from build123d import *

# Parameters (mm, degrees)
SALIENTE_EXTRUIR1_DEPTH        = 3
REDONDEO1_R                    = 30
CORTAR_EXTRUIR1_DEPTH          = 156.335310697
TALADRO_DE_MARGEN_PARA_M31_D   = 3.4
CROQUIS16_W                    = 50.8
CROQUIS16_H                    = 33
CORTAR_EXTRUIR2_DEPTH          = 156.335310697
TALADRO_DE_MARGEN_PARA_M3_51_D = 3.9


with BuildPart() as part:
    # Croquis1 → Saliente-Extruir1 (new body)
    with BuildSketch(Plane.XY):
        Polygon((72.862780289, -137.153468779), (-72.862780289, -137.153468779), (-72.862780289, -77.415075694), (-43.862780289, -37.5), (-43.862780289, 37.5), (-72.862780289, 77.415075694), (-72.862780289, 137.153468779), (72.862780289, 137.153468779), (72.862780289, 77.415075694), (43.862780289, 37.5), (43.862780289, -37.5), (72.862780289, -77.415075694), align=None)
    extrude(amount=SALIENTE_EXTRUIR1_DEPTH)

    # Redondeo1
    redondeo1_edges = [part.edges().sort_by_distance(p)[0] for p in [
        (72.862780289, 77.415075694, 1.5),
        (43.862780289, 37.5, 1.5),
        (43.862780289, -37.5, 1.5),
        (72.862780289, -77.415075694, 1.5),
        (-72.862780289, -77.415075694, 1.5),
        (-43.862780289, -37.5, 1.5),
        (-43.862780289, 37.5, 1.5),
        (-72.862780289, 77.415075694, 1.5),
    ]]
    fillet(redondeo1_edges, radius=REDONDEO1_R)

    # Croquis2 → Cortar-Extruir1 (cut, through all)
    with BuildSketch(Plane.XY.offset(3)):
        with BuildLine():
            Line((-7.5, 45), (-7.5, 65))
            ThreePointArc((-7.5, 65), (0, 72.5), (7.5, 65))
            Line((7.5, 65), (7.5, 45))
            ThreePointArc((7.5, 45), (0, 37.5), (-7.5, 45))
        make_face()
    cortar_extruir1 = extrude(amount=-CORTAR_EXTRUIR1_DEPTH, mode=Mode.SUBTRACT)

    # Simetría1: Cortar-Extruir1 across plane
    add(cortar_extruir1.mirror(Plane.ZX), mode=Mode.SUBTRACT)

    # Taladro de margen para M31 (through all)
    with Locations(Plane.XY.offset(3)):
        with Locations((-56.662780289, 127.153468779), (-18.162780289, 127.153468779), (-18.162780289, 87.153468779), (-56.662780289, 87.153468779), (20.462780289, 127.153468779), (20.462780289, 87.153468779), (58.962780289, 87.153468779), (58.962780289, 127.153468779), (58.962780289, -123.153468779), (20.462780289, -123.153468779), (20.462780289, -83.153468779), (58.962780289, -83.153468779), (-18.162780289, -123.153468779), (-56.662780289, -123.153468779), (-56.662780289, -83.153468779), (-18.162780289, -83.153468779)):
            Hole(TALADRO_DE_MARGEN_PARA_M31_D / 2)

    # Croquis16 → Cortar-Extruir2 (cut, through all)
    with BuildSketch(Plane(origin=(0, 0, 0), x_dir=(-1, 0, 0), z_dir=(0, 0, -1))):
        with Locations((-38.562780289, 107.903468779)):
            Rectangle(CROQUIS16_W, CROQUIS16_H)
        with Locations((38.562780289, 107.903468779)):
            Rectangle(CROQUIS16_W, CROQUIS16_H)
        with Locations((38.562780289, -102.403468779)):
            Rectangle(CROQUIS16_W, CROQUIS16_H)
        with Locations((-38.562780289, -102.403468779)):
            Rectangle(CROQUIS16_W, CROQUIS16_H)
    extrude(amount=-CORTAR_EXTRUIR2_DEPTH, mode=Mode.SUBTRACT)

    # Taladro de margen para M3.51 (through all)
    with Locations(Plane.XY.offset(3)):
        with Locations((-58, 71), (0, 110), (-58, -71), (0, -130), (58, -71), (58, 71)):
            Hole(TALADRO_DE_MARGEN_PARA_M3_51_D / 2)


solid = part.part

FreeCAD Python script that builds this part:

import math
import FreeCAD as App
import Part
import Sketcher
from FreeCAD import Vector
Q = App.Units.Quantity


def edges_at(feature, points):
    """Names of the edges that pass closest to the given points."""
    edges = feature.Shape.Edges
    near = lambda p: min(range(len(edges)), key=lambda i: edges[i].distToShape(Part.Vertex(*p))[0])
    return sorted({f"Edge{near(p) + 1}" for p in points})

doc = App.newDocument("Part")
params = doc.addObject("Spreadsheet::Sheet", "Params")
for row, (alias, value) in enumerate([
    ("sketch1_height", "75 mm"),
    ("pad1_length", "3 mm"),
    ("fillet_radius", "30 mm"),
    ("sketch2_radius", "7.5 mm"),
    ("sketch2_height", "20 mm"),
    ("sketch3_diameter", "3.4 mm"),
    ("hole_diameter", "3.4 mm"),
    ("sketch4_height", "33 mm"),
    ("sketch4_width", "50.8 mm"),
    ("sketch5_diameter", "3.9 mm"),
    ("hole2_diameter", "3.9 mm"),
], start=1):
    params.set(f"A{row}", alias)
    params.set(f"B{row}", "=" + value)
    params.setAlias(f"B{row}", alias)

body = doc.addObject("PartDesign::Body", "Body")

# Sketch on XY plane
sketch1 = doc.addObject("Sketcher::SketchObject", "Sketch")
body.addObject(sketch1)
sketch1.AttachmentSupport = (doc.XY_Plane, [""])
sketch1.MapMode = "FlatFace"
sketch1.addGeometry(Part.LineSegment(Vector(-72.86278, -137.153469, 0), Vector(72.86278, -137.153469, 0)), False)
sketch1.addGeometry(Part.LineSegment(Vector(72.86278, -137.153469, 0), Vector(72.86278, -77.415076, 0)), False)
sketch1.addGeometry(Part.LineSegment(Vector(72.86278, -77.415076, 0), Vector(43.86278, -37.5, 0)), False)
sketch1.addGeometry(Part.LineSegment(Vector(43.86278, -37.5, 0), Vector(43.86278, 37.5, 0)), False)
sketch1.addGeometry(Part.LineSegment(Vector(43.86278, 37.5, 0), Vector(72.86278, 77.415076, 0)), False)
sketch1.addGeometry(Part.LineSegment(Vector(72.86278, 77.415076, 0), Vector(72.86278, 137.153469, 0)), False)
sketch1.addGeometry(Part.LineSegment(Vector(72.86278, 137.153469, 0), Vector(-72.86278, 137.153469, 0)), False)
sketch1.addGeometry(Part.LineSegment(Vector(-72.86278, 137.153469, 0), Vector(-72.86278, 77.415076, 0)), False)
sketch1.addGeometry(Part.LineSegment(Vector(-72.86278, 77.415076, 0), Vector(-43.86278, 37.5, 0)), False)
sketch1.addGeometry(Part.LineSegment(Vector(-43.86278, 37.5, 0), Vector(-43.86278, -37.5, 0)), False)
sketch1.addGeometry(Part.LineSegment(Vector(-43.86278, -37.5, 0), Vector(-72.86278, -77.415076, 0)), False)
sketch1.addGeometry(Part.LineSegment(Vector(-72.86278, -77.415076, 0), Vector(-72.86278, -137.153469, 0)), False)
sketch1.addConstraint(Sketcher.Constraint("Coincident", 0, 2, 1, 1))
sketch1.addConstraint(Sketcher.Constraint("Coincident", 1, 2, 2, 1))
sketch1.addConstraint(Sketcher.Constraint("Coincident", 2, 2, 3, 1))
sketch1.addConstraint(Sketcher.Constraint("Coincident", 3, 2, 4, 1))
sketch1.addConstraint(Sketcher.Constraint("Coincident", 4, 2, 5, 1))
sketch1.addConstraint(Sketcher.Constraint("Coincident", 5, 2, 6, 1))
sketch1.addConstraint(Sketcher.Constraint("Coincident", 6, 2, 7, 1))
sketch1.addConstraint(Sketcher.Constraint("Coincident", 7, 2, 8, 1))
sketch1.addConstraint(Sketcher.Constraint("Coincident", 8, 2, 9, 1))
sketch1.addConstraint(Sketcher.Constraint("Coincident", 9, 2, 10, 1))
sketch1.addConstraint(Sketcher.Constraint("Coincident", 10, 2, 11, 1))
sketch1.addConstraint(Sketcher.Constraint("Coincident", 11, 2, 0, 1))
sketch1.addConstraint(Sketcher.Constraint("Horizontal", 0))
sketch1.addConstraint(Sketcher.Constraint("Vertical", 1))
sketch1.addConstraint(Sketcher.Constraint("Vertical", 3))
sketch1.addConstraint(Sketcher.Constraint("Vertical", 5))
sketch1.addConstraint(Sketcher.Constraint("Horizontal", 6))
sketch1.addConstraint(Sketcher.Constraint("Vertical", 7))
sketch1.addConstraint(Sketcher.Constraint("Vertical", 9))
sketch1.addConstraint(Sketcher.Constraint("Vertical", 11))
sketch1.addConstraint(Sketcher.Constraint("Symmetric", 0, 2, 6, 2, -1, 1))
sketch1.addConstraint(Sketcher.Constraint("Symmetric", 2, 2, 8, 2, -1, 1))
sketch1.addConstraint(Sketcher.Constraint("Symmetric", 4, 2, 10, 2, -1, 1))
sketch1.addConstraint(Sketcher.Constraint("Symmetric", 4, 2, 7, 2, -2))
sketch1.addConstraint(Sketcher.Constraint("Parallel", 2, 8))
sketch1.addConstraint(Sketcher.Constraint("Parallel", 4, 10))
sketch1.addConstraint(Sketcher.Constraint("Horizontal", 3, 2, 8, 2))
sketch1.addConstraint(Sketcher.Constraint("DistanceY", 3, 1, 3, 2, 75.0))
sketch1.addConstraint(Sketcher.Constraint("Angle", 2, Q("126 deg")))
sketch1.addConstraint(Sketcher.Constraint("DistanceX", 2, 2, 1, 2, 29.0))
sketch1.addConstraint(Sketcher.Constraint("DistanceX", 0, 1, 0, 2, 145.725561))
sketch1.addConstraint(Sketcher.Constraint("DistanceY", 1, 1, 1, 2, 59.738393))
sketch1.setExpression("Constraints[27]", "Params.sketch1_height")
pad1 = doc.addObject("PartDesign::Pad", "Pad")
body.addObject(pad1)
pad1.Profile = sketch1
pad1.setExpression("Length", "Params.pad1_length")
doc.recompute()

fillet = doc.addObject("PartDesign::Fillet", "Fillet")
body.addObject(fillet)
fillet.Base = (pad1, edges_at(pad1, [
    (72.863, 77.415, 1.5),
    (43.863, 37.5, 1.5),
    (43.863, -37.5, 1.5),
    (72.863, -77.415, 1.5),
    (-72.863, -77.415, 1.5),
    (-43.863, -37.5, 1.5),
    (-43.863, 37.5, 1.5),
    (-72.863, 77.415, 1.5),
]))
fillet.setExpression("Radius", "Params.fillet_radius")

# Sketch on XY plane
sketch2 = doc.addObject("Sketcher::SketchObject", "Sketch001")
body.addObject(sketch2)
sketch2.AttachmentSupport = (doc.XY_Plane, [""])
sketch2.MapMode = "FlatFace"
sketch2.AttachmentOffset = App.Placement(Vector(0, 0, 3), App.Rotation())
sketch2.addGeometry(Part.LineSegment(Vector(-7.5, 65, 0), Vector(-7.5, 45, 0)), False)
sketch2.addGeometry(Part.ArcOfCircle(Part.Circle(Vector(0, 45, 0), Vector(0, 0, 1), 7.5), math.radians(180), math.radians(360)), False)
sketch2.addGeometry(Part.LineSegment(Vector(7.5, 45, 0), Vector(7.5, 65, 0)), False)
sketch2.addGeometry(Part.ArcOfCircle(Part.Circle(Vector(0, 65, 0), Vector(0, 0, 1), 7.5), math.radians(0), math.radians(180)), False)
sketch2.addConstraint(Sketcher.Constraint("Tangent", 0, 2, 1, 1))
sketch2.addConstraint(Sketcher.Constraint("Tangent", 1, 2, 2, 1))
sketch2.addConstraint(Sketcher.Constraint("Tangent", 2, 2, 3, 1))
sketch2.addConstraint(Sketcher.Constraint("Tangent", 3, 2, 0, 1))
sketch2.addConstraint(Sketcher.Constraint("Vertical", 0))
sketch2.addConstraint(Sketcher.Constraint("Vertical", 2))
sketch2.addConstraint(Sketcher.Constraint("PointOnObject", 1, 3, -2))
sketch2.addConstraint(Sketcher.Constraint("Radius", 1, 7.5))
sketch2.addConstraint(Sketcher.Constraint("DistanceY", 0, 2, 0, 1, 20.0))
sketch2.addConstraint(Sketcher.Constraint("DistanceY", -1, 1, 1, 3, 45.0))
sketch2.setExpression("Constraints[7]", "Params.sketch2_radius")
sketch2.setExpression("Constraints[8]", "Params.sketch2_height")
pocket1 = doc.addObject("PartDesign::Pocket", "Pocket")
body.addObject(pocket1)
pocket1.Profile = sketch2
pocket1.Type = "ThroughAll"
doc.recompute()

mirrored = doc.addObject("PartDesign::Mirrored", "Mirrored")
body.addObject(mirrored)
mirrored.Originals = [pocket1]
mirrored.MirrorPlane = (doc.XZ_Plane, [""])
body.Tip = mirrored

# Sketch on XY plane
sketch3 = doc.addObject("Sketcher::SketchObject", "Sketch002")
body.addObject(sketch3)
sketch3.AttachmentSupport = (doc.XY_Plane, [""])
sketch3.MapMode = "FlatFace"
sketch3.AttachmentOffset = App.Placement(Vector(0, 0, 3), App.Rotation())
sketch3.addGeometry(Part.Circle(Vector(-56.66278, 127.153469, 0), Vector(0, 0, 1), 1.7), False)
sketch3.addGeometry(Part.Circle(Vector(-18.16278, 127.153469, 0), Vector(0, 0, 1), 1.7), False)
sketch3.addGeometry(Part.Circle(Vector(-18.16278, 87.153469, 0), Vector(0, 0, 1), 1.7), False)
sketch3.addGeometry(Part.Circle(Vector(-56.66278, 87.153469, 0), Vector(0, 0, 1), 1.7), False)
sketch3.addGeometry(Part.Circle(Vector(20.46278, 127.153469, 0), Vector(0, 0, 1), 1.7), False)
sketch3.addGeometry(Part.Circle(Vector(20.46278, 87.153469, 0), Vector(0, 0, 1), 1.7), False)
sketch3.addGeometry(Part.Circle(Vector(58.96278, 87.153469, 0), Vector(0, 0, 1), 1.7), False)
sketch3.addGeometry(Part.Circle(Vector(58.96278, 127.153469, 0), Vector(0, 0, 1), 1.7), False)
sketch3.addGeometry(Part.Circle(Vector(58.96278, -123.153469, 0), Vector(0, 0, 1), 1.7), False)
sketch3.addGeometry(Part.Circle(Vector(20.46278, -123.153469, 0), Vector(0, 0, 1), 1.7), False)
sketch3.addGeometry(Part.Circle(Vector(20.46278, -83.153469, 0), Vector(0, 0, 1), 1.7), False)
sketch3.addGeometry(Part.Circle(Vector(58.96278, -83.153469, 0), Vector(0, 0, 1), 1.7), False)
sketch3.addGeometry(Part.Circle(Vector(-18.16278, -123.153469, 0), Vector(0, 0, 1), 1.7), False)
sketch3.addGeometry(Part.Circle(Vector(-56.66278, -123.153469, 0), Vector(0, 0, 1), 1.7), False)
sketch3.addGeometry(Part.Circle(Vector(-56.66278, -83.153469, 0), Vector(0, 0, 1), 1.7), False)
sketch3.addGeometry(Part.Circle(Vector(-18.16278, -83.153469, 0), Vector(0, 0, 1), 1.7), False)
sketch3.addConstraint(Sketcher.Constraint("Equal", 0, 1))
sketch3.addConstraint(Sketcher.Constraint("Equal", 1, 2))
sketch3.addConstraint(Sketcher.Constraint("Equal", 2, 3))
sketch3.addConstraint(Sketcher.Constraint("Equal", 3, 4))
sketch3.addConstraint(Sketcher.Constraint("Equal", 4, 5))
sketch3.addConstraint(Sketcher.Constraint("Equal", 5, 6))
sketch3.addConstraint(Sketcher.Constraint("Equal", 6, 7))
sketch3.addConstraint(Sketcher.Constraint("Equal", 7, 8))
sketch3.addConstraint(Sketcher.Constraint("Equal", 8, 9))
sketch3.addConstraint(Sketcher.Constraint("Equal", 9, 10))
sketch3.addConstraint(Sketcher.Constraint("Equal", 10, 11))
sketch3.addConstraint(Sketcher.Constraint("Equal", 11, 12))
sketch3.addConstraint(Sketcher.Constraint("Equal", 12, 13))
sketch3.addConstraint(Sketcher.Constraint("Equal", 13, 14))
sketch3.addConstraint(Sketcher.Constraint("Equal", 14, 15))
sketch3.addConstraint(Sketcher.Constraint("Horizontal", 0, 3, 1, 3))
sketch3.addConstraint(Sketcher.Constraint("Horizontal", 2, 3, 3, 3))
sketch3.addConstraint(Sketcher.Constraint("Horizontal", 1, 3, 4, 3))
sketch3.addConstraint(Sketcher.Constraint("Horizontal", 3, 3, 5, 3))
sketch3.addConstraint(Sketcher.Constraint("Horizontal", 5, 3, 6, 3))
sketch3.addConstraint(Sketcher.Constraint("Horizontal", 4, 3, 7, 3))
sketch3.addConstraint(Sketcher.Constraint("Horizontal", 8, 3, 9, 3))
sketch3.addConstraint(Sketcher.Constraint("Horizontal", 10, 3, 11, 3))
sketch3.addConstraint(Sketcher.Constraint("Horizontal", 9, 3, 12, 3))
sketch3.addConstraint(Sketcher.Constraint("Horizontal", 12, 3, 13, 3))
sketch3.addConstraint(Sketcher.Constraint("Horizontal", 11, 3, 14, 3))
sketch3.addConstraint(Sketcher.Constraint("Horizontal", 14, 3, 15, 3))
sketch3.addConstraint(Sketcher.Constraint("Vertical", 1, 3, 2, 3))
sketch3.addConstraint(Sketcher.Constraint("Vertical", 0, 3, 3, 3))
sketch3.addConstraint(Sketcher.Constraint("Vertical", 4, 3, 5, 3))
sketch3.addConstraint(Sketcher.Constraint("Vertical", 6, 3, 7, 3))
sketch3.addConstraint(Sketcher.Constraint("Vertical", 7, 3, 8, 3))
sketch3.addConstraint(Sketcher.Constraint("Vertical", 5, 3, 9, 3))
sketch3.addConstraint(Sketcher.Constraint("Vertical", 9, 3, 10, 3))
sketch3.addConstraint(Sketcher.Constraint("Vertical", 8, 3, 11, 3))
sketch3.addConstraint(Sketcher.Constraint("Vertical", 2, 3, 12, 3))
sketch3.addConstraint(Sketcher.Constraint("Vertical", 3, 3, 13, 3))
sketch3.addConstraint(Sketcher.Constraint("Vertical", 13, 3, 14, 3))
sketch3.addConstraint(Sketcher.Constraint("Vertical", 12, 3, 15, 3))
sketch3.addConstraint(Sketcher.Constraint("Diameter", 0, 3.4))
sketch3.addConstraint(Sketcher.Constraint("DistanceY", 2, 3, 1, 3, 40.0))
sketch3.addConstraint(Sketcher.Constraint("DistanceY", 9, 3, 10, 3, 40.0))
sketch3.addConstraint(Sketcher.Constraint("DistanceX", 0, 3, 1, 3, 38.5))
sketch3.addConstraint(Sketcher.Constraint("DistanceX", 5, 3, 6, 3, 38.5))
sketch3.addConstraint(Sketcher.Constraint("DistanceX", 0, 3, -1, 1, 56.66278))
sketch3.addConstraint(Sketcher.Constraint("DistanceY", -1, 1, 0, 3, 127.153469))
sketch3.addConstraint(Sketcher.Constraint("DistanceX", -1, 1, 4, 3, 20.46278))
sketch3.addConstraint(Sketcher.Constraint("DistanceY", 8, 3, -1, 1, 123.153469))
sketch3.setExpression("Constraints[39]", "Params.sketch3_diameter")
doc.recompute()
hole = doc.addObject("PartDesign::Hole", "Hole")
body.addObject(hole)
hole.Profile = sketch3
hole.ThreadType = "None"
hole.setExpression("Diameter", "Params.hole_diameter")
hole.DepthType = "ThroughAll"

# Sketch on XY plane
sketch4 = doc.addObject("Sketcher::SketchObject", "Sketch003")
body.addObject(sketch4)
sketch4.AttachmentSupport = (doc.XY_Plane, [""])
sketch4.MapMode = "FlatFace"
sketch4.addGeometry(Part.LineSegment(Vector(63.96278, 124.403469, 0), Vector(63.96278, 91.403469, 0)), False)
sketch4.addGeometry(Part.LineSegment(Vector(63.96278, 91.403469, 0), Vector(13.16278, 91.403469, 0)), False)
sketch4.addGeometry(Part.LineSegment(Vector(13.16278, 91.403469, 0), Vector(13.16278, 124.403469, 0)), False)
sketch4.addGeometry(Part.LineSegment(Vector(13.16278, 124.403469, 0), Vector(63.96278, 124.403469, 0)), False)
sketch4.addGeometry(Part.LineSegment(Vector(-13.16278, 124.403469, 0), Vector(-13.16278, 91.403469, 0)), False)
sketch4.addGeometry(Part.LineSegment(Vector(-13.16278, 91.403469, 0), Vector(-63.96278, 91.403469, 0)), False)
sketch4.addGeometry(Part.LineSegment(Vector(-63.96278, 91.403469, 0), Vector(-63.96278, 124.403469, 0)), False)
sketch4.addGeometry(Part.LineSegment(Vector(-63.96278, 124.403469, 0), Vector(-13.16278, 124.403469, 0)), False)
sketch4.addGeometry(Part.LineSegment(Vector(-13.16278, -85.903469, 0), Vector(-13.16278, -118.903469, 0)), False)
sketch4.addGeometry(Part.LineSegment(Vector(-13.16278, -118.903469, 0), Vector(-63.96278, -118.903469, 0)), False)
sketch4.addGeometry(Part.LineSegment(Vector(-63.96278, -118.903469, 0), Vector(-63.96278, -85.903469, 0)), False)
sketch4.addGeometry(Part.LineSegment(Vector(-63.96278, -85.903469, 0), Vector(-13.16278, -85.903469, 0)), False)
sketch4.addGeometry(Part.LineSegment(Vector(63.96278, -85.903469, 0), Vector(63.96278, -118.903469, 0)), False)
sketch4.addGeometry(Part.LineSegment(Vector(63.96278, -118.903469, 0), Vector(13.16278, -118.903469, 0)), False)
sketch4.addGeometry(Part.LineSegment(Vector(13.16278, -118.903469, 0), Vector(13.16278, -85.903469, 0)), False)
sketch4.addGeometry(Part.LineSegment(Vector(13.16278, -85.903469, 0), Vector(63.96278, -85.903469, 0)), False)
sketch4.addConstraint(Sketcher.Constraint("Coincident", 0, 2, 1, 1))
sketch4.addConstraint(Sketcher.Constraint("Coincident", 1, 2, 2, 1))
sketch4.addConstraint(Sketcher.Constraint("Coincident", 2, 2, 3, 1))
sketch4.addConstraint(Sketcher.Constraint("Coincident", 3, 2, 0, 1))
sketch4.addConstraint(Sketcher.Constraint("Coincident", 4, 2, 5, 1))
sketch4.addConstraint(Sketcher.Constraint("Coincident", 5, 2, 6, 1))
sketch4.addConstraint(Sketcher.Constraint("Coincident", 6, 2, 7, 1))
sketch4.addConstraint(Sketcher.Constraint("Coincident", 7, 2, 4, 1))
sketch4.addConstraint(Sketcher.Constraint("Coincident", 8, 2, 9, 1))
sketch4.addConstraint(Sketcher.Constraint("Coincident", 9, 2, 10, 1))
sketch4.addConstraint(Sketcher.Constraint("Coincident", 10, 2, 11, 1))
sketch4.addConstraint(Sketcher.Constraint("Coincident", 11, 2, 8, 1))
sketch4.addConstraint(Sketcher.Constraint("Coincident", 12, 2, 13, 1))
sketch4.addConstraint(Sketcher.Constraint("Coincident", 13, 2, 14, 1))
sketch4.addConstraint(Sketcher.Constraint("Coincident", 14, 2, 15, 1))
sketch4.addConstraint(Sketcher.Constraint("Coincident", 15, 2, 12, 1))
sketch4.addConstraint(Sketcher.Constraint("Vertical", 0))
sketch4.addConstraint(Sketcher.Constraint("Horizontal", 1))
sketch4.addConstraint(Sketcher.Constraint("Vertical", 2))
sketch4.addConstraint(Sketcher.Constraint("Horizontal", 3))
sketch4.addConstraint(Sketcher.Constraint("Vertical", 4))
sketch4.addConstraint(Sketcher.Constraint("Horizontal", 5))
sketch4.addConstraint(Sketcher.Constraint("Vertical", 6))
sketch4.addConstraint(Sketcher.Constraint("Horizontal", 7))
sketch4.addConstraint(Sketcher.Constraint("Vertical", 8))
sketch4.addConstraint(Sketcher.Constraint("Horizontal", 9))
sketch4.addConstraint(Sketcher.Constraint("Vertical", 10))
sketch4.addConstraint(Sketcher.Constraint("Horizontal", 11))
sketch4.addConstraint(Sketcher.Constraint("Vertical", 12))
sketch4.addConstraint(Sketcher.Constraint("Horizontal", 13))
sketch4.addConstraint(Sketcher.Constraint("Vertical", 14))
sketch4.addConstraint(Sketcher.Constraint("Horizontal", 15))
sketch4.addConstraint(Sketcher.Constraint("Symmetric", 1, 2, 4, 2, -2))
sketch4.addConstraint(Sketcher.Constraint("Symmetric", 3, 2, 6, 2, -2))
sketch4.addConstraint(Sketcher.Constraint("Symmetric", 9, 2, 12, 2, -2))
sketch4.addConstraint(Sketcher.Constraint("Symmetric", 11, 2, 14, 2, -2))
sketch4.addConstraint(Sketcher.Constraint("Vertical", 7, 2, 8, 2))
sketch4.addConstraint(Sketcher.Constraint("Vertical", 6, 2, 9, 2))
sketch4.addConstraint(Sketcher.Constraint("Equal", 6, 8))
sketch4.addConstraint(Sketcher.Constraint("DistanceY", 0, 2, 0, 1, 33.0))
sketch4.addConstraint(Sketcher.Constraint("DistanceX", 1, 2, 1, 1, 50.8))
sketch4.addConstraint(Sketcher.Constraint("DistanceX", -1, 1, 0, 2, 63.96278))
sketch4.addConstraint(Sketcher.Constraint("DistanceY", -1, 1, 0, 2, 91.403469))
sketch4.addConstraint(Sketcher.Constraint("DistanceY", 8, 2, -1, 1, 118.903469))
sketch4.setExpression("Constraints[39]", "Params.sketch4_height")
sketch4.setExpression("Constraints[40]", "Params.sketch4_width")
pocket2 = doc.addObject("PartDesign::Pocket", "Pocket001")
body.addObject(pocket2)
pocket2.Profile = sketch4
pocket2.Type = "ThroughAll"
pocket2.Reversed = True

# Sketch on XY plane
sketch5 = doc.addObject("Sketcher::SketchObject", "Sketch004")
body.addObject(sketch5)
sketch5.AttachmentSupport = (doc.XY_Plane, [""])
sketch5.MapMode = "FlatFace"
sketch5.AttachmentOffset = App.Placement(Vector(0, 0, 3), App.Rotation())
sketch5.addGeometry(Part.Circle(Vector(-58, 71, 0), Vector(0, 0, 1), 1.95), False)
sketch5.addGeometry(Part.Circle(Vector(0, 110, 0), Vector(0, 0, 1), 1.95), False)
sketch5.addGeometry(Part.Circle(Vector(-58, -71, 0), Vector(0, 0, 1), 1.95), False)
sketch5.addGeometry(Part.Circle(Vector(0, -130, 0), Vector(0, 0, 1), 1.95), False)
sketch5.addGeometry(Part.Circle(Vector(58, -71, 0), Vector(0, 0, 1), 1.95), False)
sketch5.addGeometry(Part.Circle(Vector(58, 71, 0), Vector(0, 0, 1), 1.95), False)
sketch5.addConstraint(Sketcher.Constraint("Equal", 0, 1))
sketch5.addConstraint(Sketcher.Constraint("Equal", 1, 2))
sketch5.addConstraint(Sketcher.Constraint("Equal", 2, 3))
sketch5.addConstraint(Sketcher.Constraint("Equal", 3, 4))
sketch5.addConstraint(Sketcher.Constraint("Equal", 4, 5))
sketch5.addConstraint(Sketcher.Constraint("Symmetric", 0, 3, 4, 3, -1, 1))
sketch5.addConstraint(Sketcher.Constraint("Symmetric", 2, 3, 5, 3, -1, 1))
sketch5.addConstraint(Sketcher.Constraint("Symmetric", 2, 3, 4, 3, -2))
sketch5.addConstraint(Sketcher.Constraint("PointOnObject", 1, 3, -2))
sketch5.addConstraint(Sketcher.Constraint("PointOnObject", 3, 3, -2))
sketch5.addConstraint(Sketcher.Constraint("Diameter", 0, 3.9))
sketch5.addConstraint(Sketcher.Constraint("DistanceX", 0, 3, -1, 1, 58.0))
sketch5.addConstraint(Sketcher.Constraint("DistanceY", -1, 1, 0, 3, 71.0))
sketch5.addConstraint(Sketcher.Constraint("DistanceY", -1, 1, 1, 3, 110.0))
sketch5.addConstraint(Sketcher.Constraint("DistanceY", 3, 3, -1, 1, 130.0))
sketch5.setExpression("Constraints[10]", "Params.sketch5_diameter")
doc.recompute()
hole2 = doc.addObject("PartDesign::Hole", "Hole001")
body.addObject(hole2)
hole2.Profile = sketch5
hole2.ThreadType = "None"
hole2.setExpression("Diameter", "Params.hole2_diameter")
hole2.DepthType = "ThroughAll"

doc.recompute()
